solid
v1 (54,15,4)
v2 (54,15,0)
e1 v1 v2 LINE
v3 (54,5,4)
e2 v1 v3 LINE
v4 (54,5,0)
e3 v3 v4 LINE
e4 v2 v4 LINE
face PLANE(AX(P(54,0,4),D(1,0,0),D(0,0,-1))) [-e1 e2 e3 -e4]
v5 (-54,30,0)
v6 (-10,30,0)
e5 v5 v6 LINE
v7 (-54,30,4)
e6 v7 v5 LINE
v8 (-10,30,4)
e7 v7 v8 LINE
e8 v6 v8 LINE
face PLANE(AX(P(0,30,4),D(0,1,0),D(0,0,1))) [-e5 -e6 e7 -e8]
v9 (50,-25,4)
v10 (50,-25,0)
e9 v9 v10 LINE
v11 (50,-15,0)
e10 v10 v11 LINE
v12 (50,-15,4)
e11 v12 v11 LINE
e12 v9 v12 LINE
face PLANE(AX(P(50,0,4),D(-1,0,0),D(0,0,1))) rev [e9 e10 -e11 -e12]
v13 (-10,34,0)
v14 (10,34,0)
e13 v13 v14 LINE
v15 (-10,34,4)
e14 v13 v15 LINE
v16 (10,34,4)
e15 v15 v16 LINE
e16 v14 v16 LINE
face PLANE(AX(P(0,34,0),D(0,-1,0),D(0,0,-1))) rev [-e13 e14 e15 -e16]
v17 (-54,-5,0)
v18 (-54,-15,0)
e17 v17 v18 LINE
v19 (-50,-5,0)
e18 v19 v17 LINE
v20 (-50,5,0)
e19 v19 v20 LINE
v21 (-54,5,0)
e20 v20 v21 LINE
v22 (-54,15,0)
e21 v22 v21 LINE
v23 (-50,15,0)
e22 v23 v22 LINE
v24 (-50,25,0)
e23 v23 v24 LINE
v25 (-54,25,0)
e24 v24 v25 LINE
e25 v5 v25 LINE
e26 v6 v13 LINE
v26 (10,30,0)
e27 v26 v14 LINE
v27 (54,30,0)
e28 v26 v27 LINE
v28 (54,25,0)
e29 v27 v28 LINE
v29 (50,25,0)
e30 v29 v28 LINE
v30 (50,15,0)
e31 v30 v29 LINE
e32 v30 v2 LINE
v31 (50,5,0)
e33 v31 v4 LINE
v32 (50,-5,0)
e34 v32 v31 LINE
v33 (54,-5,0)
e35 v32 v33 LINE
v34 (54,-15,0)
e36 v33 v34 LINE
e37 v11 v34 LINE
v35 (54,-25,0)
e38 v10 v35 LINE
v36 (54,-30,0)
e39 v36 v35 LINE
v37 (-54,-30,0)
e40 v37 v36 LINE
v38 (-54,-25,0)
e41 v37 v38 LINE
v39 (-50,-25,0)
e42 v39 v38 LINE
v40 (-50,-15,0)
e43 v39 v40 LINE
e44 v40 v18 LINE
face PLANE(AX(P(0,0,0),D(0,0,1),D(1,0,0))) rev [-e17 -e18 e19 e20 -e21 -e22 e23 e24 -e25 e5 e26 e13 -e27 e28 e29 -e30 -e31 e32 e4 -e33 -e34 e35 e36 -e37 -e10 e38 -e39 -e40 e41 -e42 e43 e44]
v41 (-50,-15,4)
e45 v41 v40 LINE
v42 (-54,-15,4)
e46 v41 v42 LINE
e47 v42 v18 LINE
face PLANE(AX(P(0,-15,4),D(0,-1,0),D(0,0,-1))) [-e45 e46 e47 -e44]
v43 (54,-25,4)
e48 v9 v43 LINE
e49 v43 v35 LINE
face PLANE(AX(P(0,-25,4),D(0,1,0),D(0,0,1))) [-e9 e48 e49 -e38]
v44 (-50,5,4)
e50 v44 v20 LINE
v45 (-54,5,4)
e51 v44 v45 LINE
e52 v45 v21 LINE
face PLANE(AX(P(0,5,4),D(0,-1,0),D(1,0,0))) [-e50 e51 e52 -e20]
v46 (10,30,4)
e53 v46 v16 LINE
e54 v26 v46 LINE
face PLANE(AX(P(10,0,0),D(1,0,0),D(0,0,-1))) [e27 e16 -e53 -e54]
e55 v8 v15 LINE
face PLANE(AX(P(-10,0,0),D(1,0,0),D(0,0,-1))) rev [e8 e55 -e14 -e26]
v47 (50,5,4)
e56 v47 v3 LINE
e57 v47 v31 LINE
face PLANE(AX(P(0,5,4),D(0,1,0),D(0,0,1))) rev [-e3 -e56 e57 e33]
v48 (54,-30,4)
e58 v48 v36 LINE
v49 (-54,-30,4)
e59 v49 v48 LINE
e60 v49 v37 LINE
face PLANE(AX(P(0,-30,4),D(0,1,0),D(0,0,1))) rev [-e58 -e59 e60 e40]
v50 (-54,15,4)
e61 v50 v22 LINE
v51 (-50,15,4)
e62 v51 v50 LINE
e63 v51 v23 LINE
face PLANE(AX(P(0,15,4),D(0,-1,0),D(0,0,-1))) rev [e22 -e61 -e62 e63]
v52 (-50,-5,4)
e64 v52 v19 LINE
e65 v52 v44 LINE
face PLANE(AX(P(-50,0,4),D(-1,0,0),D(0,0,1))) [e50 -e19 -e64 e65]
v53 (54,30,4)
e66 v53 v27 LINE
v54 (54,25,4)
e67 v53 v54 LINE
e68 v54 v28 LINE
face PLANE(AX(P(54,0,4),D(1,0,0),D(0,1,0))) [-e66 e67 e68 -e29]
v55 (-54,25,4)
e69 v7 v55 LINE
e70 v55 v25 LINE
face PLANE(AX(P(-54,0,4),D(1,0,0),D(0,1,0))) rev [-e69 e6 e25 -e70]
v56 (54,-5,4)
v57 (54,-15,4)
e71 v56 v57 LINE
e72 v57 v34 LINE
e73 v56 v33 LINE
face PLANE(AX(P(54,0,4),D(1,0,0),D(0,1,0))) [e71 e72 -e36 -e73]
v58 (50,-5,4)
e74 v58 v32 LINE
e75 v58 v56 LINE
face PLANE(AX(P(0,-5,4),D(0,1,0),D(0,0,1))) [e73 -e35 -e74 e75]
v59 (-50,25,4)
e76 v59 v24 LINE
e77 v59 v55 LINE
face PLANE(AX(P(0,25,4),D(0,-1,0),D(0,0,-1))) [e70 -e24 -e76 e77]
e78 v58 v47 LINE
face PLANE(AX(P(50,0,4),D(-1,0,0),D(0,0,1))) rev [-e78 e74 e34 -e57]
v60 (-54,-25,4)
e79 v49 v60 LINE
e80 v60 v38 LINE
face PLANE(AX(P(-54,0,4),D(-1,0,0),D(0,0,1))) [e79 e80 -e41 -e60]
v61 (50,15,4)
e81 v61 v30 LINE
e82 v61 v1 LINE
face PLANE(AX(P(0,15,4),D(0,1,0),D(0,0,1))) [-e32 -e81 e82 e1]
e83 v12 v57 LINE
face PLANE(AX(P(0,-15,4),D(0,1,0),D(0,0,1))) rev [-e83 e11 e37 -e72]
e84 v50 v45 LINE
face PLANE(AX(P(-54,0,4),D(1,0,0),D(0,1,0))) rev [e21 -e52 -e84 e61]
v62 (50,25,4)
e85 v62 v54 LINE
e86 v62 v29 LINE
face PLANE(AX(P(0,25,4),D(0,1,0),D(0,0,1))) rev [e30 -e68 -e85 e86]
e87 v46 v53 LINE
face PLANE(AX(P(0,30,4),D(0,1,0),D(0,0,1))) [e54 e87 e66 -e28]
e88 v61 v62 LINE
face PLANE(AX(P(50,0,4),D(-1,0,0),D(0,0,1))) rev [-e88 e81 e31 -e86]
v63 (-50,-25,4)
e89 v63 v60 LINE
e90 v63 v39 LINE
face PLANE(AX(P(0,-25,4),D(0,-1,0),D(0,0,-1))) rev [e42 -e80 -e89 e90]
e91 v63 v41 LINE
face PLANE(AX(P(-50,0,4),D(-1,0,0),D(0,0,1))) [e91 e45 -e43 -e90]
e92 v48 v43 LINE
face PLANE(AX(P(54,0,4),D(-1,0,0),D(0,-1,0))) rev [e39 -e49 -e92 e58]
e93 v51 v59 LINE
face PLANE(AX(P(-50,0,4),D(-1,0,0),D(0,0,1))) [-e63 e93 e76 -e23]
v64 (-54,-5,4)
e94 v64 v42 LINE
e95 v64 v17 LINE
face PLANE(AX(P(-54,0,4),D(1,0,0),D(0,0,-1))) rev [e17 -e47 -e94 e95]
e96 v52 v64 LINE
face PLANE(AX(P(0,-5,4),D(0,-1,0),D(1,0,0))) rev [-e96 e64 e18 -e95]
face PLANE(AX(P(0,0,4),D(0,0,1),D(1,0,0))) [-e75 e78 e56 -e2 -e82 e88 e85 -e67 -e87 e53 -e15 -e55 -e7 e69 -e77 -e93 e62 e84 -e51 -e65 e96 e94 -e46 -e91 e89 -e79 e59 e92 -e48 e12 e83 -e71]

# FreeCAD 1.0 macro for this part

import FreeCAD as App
import Part
import Sketcher

V = App.Vector
Q = App.Units.Quantity


def add_polygon(sketch, points):
    """Adds a closed chain of lines whose ends are joined by coincident constraints."""
    first, n = sketch.GeometryCount, len(points)
    for a, b in zip(points, points[1:] + points[:1]):
        sketch.addGeometry(Part.LineSegment(App.Vector(*a, 0), App.Vector(*b, 0)), False)
    for i in range(n):
        sketch.addConstraint(Sketcher.Constraint("Coincident", first + i, 2, first + (i + 1) % n, 1))

doc = App.newDocument("Part")
body = doc.addObject("PartDesign::Body", "Body")

# Sketch on XY plane
sketch1 = body.newObject("Sketcher::SketchObject", "Sketch")
sketch1.AttachmentSupport = (doc.getObject("XY_Plane"), [""])
sketch1.MapMode = "FlatFace"
add_polygon(sketch1, [(-50, 25), (-50, 15), (-54, 15), (-54, 5), (-50, 5), (-50, -5), (-54, -5), (-54, -15), (-50, -15), (-50, -25), (-54, -25), (-54, -30), (54, -30), (54, -25), (50, -25), (50, -15), (54, -15), (54, -5), (50, -5), (50, 5), (54, 5), (54, 15), (50, 15), (50, 25), (54, 25), (54, 30), (-54, 30), (-54, 25)])  # lines 0-27
sketch1.addConstraint([
    Sketcher.Constraint("Vertical", 0),
    Sketcher.Constraint("Horizontal", 1),
    Sketcher.Constraint("Vertical", 2),
    Sketcher.Constraint("Horizontal", 3),
    Sketcher.Constraint("Vertical", 4),
    Sketcher.Constraint("Horizontal", 5),
    Sketcher.Constraint("Vertical", 6),
    Sketcher.Constraint("Horizontal", 7),
    Sketcher.Constraint("Vertical", 8),
    Sketcher.Constraint("Horizontal", 9),
    Sketcher.Constraint("Vertical", 10),
    Sketcher.Constraint("Horizontal", 11),
    Sketcher.Constraint("Vertical", 12),
    Sketcher.Constraint("Horizontal", 13),
    Sketcher.Constraint("Vertical", 14),
    Sketcher.Constraint("Horizontal", 15),
    Sketcher.Constraint("Vertical", 16),
    Sketcher.Constraint("Horizontal", 17),
    Sketcher.Constraint("Vertical", 18),
    Sketcher.Constraint("Horizontal", 19),
    Sketcher.Constraint("Vertical", 20),
    Sketcher.Constraint("Horizontal", 21),
    Sketcher.Constraint("Vertical", 22),
    Sketcher.Constraint("Horizontal", 23),
    Sketcher.Constraint("Vertical", 24),
    Sketcher.Constraint("Horizontal", 25),
    Sketcher.Constraint("Vertical", 26),
    Sketcher.Constraint("Horizontal", 27),
    Sketcher.Constraint("Symmetric", 0, 2, 14, 2, -1, 1),
    Sketcher.Constraint("Symmetric", 2, 2, 16, 2, -1, 1),
    Sketcher.Constraint("Symmetric", 4, 2, 18, 2, -1, 1),
    Sketcher.Constraint("Symmetric", 6, 2, 20, 2, -1, 1),
    Sketcher.Constraint("Symmetric", 8, 2, 22, 2, -1, 1),
    Sketcher.Constraint("Symmetric", 10, 2, 24, 2, -1, 1),
    Sketcher.Constraint("Symmetric", 12, 2, 26, 2, -1, 1),
    Sketcher.Constraint("Symmetric", 9, 2, 12, 2, -2),
    Sketcher.Constraint("Symmetric", 7, 2, 14, 2, -2),
    Sketcher.Constraint("Symmetric", 5, 2, 16, 2, -2),
    Sketcher.Constraint("Vertical", 0, 2, 3, 2),
    Sketcher.Constraint("Vertical", 6, 2, 9, 2),
    Sketcher.Constraint("Equal", 0, 2),
    Sketcher.Constraint("Equal", 2, 4),
    Sketcher.Constraint("DistanceX", 1, 2, 1, 1, Q("4 mm")),
    Sketcher.Constraint("DistanceX", 11, 1, 11, 2, Q("108 mm")),
    Sketcher.Constraint("DistanceY", 0, 2, 0, 1, Q("10 mm")),
    Sketcher.Constraint("DistanceY", 10, 2, 10, 1, Q("5 mm")),
])
pad1 = body.newObject("PartDesign::Pad", "Pad")
pad1.Profile = sketch1
pad1.Length = 4

# Sketch on XY plane
sketch2 = body.newObject("Sketcher::SketchObject", "Sketch001")
sketch2.AttachmentSupport = (doc.getObject("XY_Plane"), [""])
sketch2.MapMode = "FlatFace"
sketch2.AttachmentOffset = App.Placement(V(0, 0, 4), App.Rotation())
add_polygon(sketch2, [(-10, 34), (-10, 30), (10, 30), (10, 34)])  # lines 0-3
sketch2.addConstraint([
    Sketcher.Constraint("Vertical", 0),
    Sketcher.Constraint("Horizontal", 1),
    Sketcher.Constraint("Vertical", 2),
    Sketcher.Constraint("Horizontal", 3),
    Sketcher.Constraint("DistanceX", 1, 1, 1, 2, Q("20 mm")),
    Sketcher.Constraint("DistanceY", 0, 2, 0, 1, Q("4 mm")),
    Sketcher.Constraint("DistanceX", 0, 2, -1, 1, Q("10 mm")),
    Sketcher.Constraint("DistanceY", -1, 1, 0, 2, Q("30 mm")),
])
pad2 = body.newObject("PartDesign::Pad", "Pad001")
pad2.Profile = sketch2
pad2.Length = 4
pad2.Reversed = True

doc.recompute()
